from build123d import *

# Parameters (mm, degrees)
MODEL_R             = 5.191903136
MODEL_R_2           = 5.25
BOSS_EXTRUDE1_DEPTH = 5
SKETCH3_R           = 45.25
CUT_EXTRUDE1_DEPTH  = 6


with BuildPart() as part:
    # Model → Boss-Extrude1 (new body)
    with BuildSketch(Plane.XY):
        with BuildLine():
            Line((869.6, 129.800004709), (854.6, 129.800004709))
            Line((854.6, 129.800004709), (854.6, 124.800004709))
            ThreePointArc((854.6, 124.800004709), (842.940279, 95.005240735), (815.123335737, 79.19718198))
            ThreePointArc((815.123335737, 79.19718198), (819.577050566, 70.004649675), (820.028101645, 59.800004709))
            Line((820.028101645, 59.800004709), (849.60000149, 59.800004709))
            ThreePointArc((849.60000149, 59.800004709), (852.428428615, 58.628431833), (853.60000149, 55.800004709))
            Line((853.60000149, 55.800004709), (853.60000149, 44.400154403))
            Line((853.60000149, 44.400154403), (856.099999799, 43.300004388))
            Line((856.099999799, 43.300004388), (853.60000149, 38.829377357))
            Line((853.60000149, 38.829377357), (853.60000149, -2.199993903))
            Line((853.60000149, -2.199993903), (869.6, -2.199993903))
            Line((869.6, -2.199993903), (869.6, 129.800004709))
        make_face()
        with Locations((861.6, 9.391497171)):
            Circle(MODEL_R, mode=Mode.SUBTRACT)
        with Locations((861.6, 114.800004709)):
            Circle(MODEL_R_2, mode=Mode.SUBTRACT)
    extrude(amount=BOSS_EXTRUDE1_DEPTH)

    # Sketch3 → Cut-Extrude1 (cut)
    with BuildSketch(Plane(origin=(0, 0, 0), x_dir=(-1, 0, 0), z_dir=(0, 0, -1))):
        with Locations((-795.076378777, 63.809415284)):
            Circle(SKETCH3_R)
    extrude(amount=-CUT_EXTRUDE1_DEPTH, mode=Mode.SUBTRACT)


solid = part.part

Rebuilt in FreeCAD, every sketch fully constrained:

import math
import FreeCAD as App
import Part
import Sketcher

doc = App.newDocument("Part")
body = doc.addObject("PartDesign::Body", "Body")

# Sketch on XY plane
sketch1 = body.newObject("Sketcher::SketchObject", "Sketch")
sketch1.AttachmentSupport = (doc.getObject("XY_Plane"), [""])
sketch1.MapMode = "FlatFace"
sketch1.addGeometry(Part.LineSegment(App.Vector(869.6, 129.8, 0), App.Vector(854.6, 129.8, 0)), False)
sketch1.addGeometry(Part.LineSegment(App.Vector(854.6, 129.8, 0), App.Vector(854.6, 124.8, 0)), False)
sketch1.addGeometry(Part.ArcOfCircle(Part.Circle(App.Vector(806.7, 126.4, 0), App.Vector(0, 0, 1), 47.9), math.radians(-80), math.radians(-2)), False)
sketch1.addGeometry(Part.ArcOfCircle(Part.Circle(App.Vector(795.1, 63.8, 0), App.Vector(0, 0, 1), 25.3), math.radians(-9), math.radians(38)), False)
sketch1.addGeometry(Part.LineSegment(App.Vector(820, 59.8, 0), App.Vector(849.6, 59.8, 0)), False)
sketch1.addGeometry(Part.ArcOfCircle(Part.Circle(App.Vector(849.6, 55.8, 0), App.Vector(0, 0, 1), 4), math.radians(0), math.radians(90)), False)
sketch1.addGeometry(Part.LineSegment(App.Vector(853.6, 55.8, 0), App.Vector(853.6, 44.4, 0)), False)
sketch1.addGeometry(Part.LineSegment(App.Vector(853.6, 44.4, 0), App.Vector(856.1, 43.3, 0)), False)
sketch1.addGeometry(Part.LineSegment(App.Vector(856.1, 43.3, 0), App.Vector(853.6, 38.8, 0)), False)
sketch1.addGeometry(Part.LineSegment(App.Vector(853.6, 38.8, 0), App.Vector(853.6, -2.2, 0)), False)
sketch1.addGeometry(Part.LineSegment(App.Vector(853.6, -2.2, 0), App.Vector(869.6, -2.2, 0)), False)
sketch1.addGeometry(Part.LineSegment(App.Vector(869.6, -2.2, 0), App.Vector(869.6, 129.8, 0)), False)
sketch1.addGeometry(Part.Circle(App.Vector(861.6, 9.4, 0), App.Vector(0, 0, 1), 5.2), False)
sketch1.addGeometry(Part.Circle(App.Vector(861.6, 114.8, 0), App.Vector(0, 0, 1), 5.2), False)
sketch1.addConstraint(Sketcher.Constraint("Coincident", 0, 2, 1, 1))
sketch1.addConstraint(Sketcher.Constraint("Coincident", 1, 2, 2, 2))
sketch1.addConstraint(Sketcher.Constraint("Coincident", 2, 1, 3, 2))
sketch1.addConstraint(Sketcher.Constraint("Coincident", 3, 1, 4, 1))
sketch1.addConstraint(Sketcher.Constraint("Tangent", 4, 2, 5, 2))
sketch1.addConstraint(Sketcher.Constraint("Tangent", 5, 1, 6, 1))
sketch1.addConstraint(Sketcher.Constraint("Coincident", 6, 2, 7, 1))
sketch1.addConstraint(Sketcher.Constraint("Coincident", 7, 2, 8, 1))
sketch1.addConstraint(Sketcher.Constraint("Coincident", 8, 2, 9, 1))
sketch1.addConstraint(Sketcher.Constraint("Coincident", 9, 2, 10, 1))
sketch1.addConstraint(Sketcher.Constraint("Coincident", 10, 2, 11, 1))
sketch1.addConstraint(Sketcher.Constraint("Coincident", 11, 2, 0, 1))
sketch1.addConstraint(Sketcher.Constraint("Horizontal", 0))
sketch1.addConstraint(Sketcher.Constraint("Vertical", 1))
sketch1.addConstraint(Sketcher.Constraint("Horizontal", 4))
sketch1.addConstraint(Sketcher.Constraint("Vertical", 6))
sketch1.addConstraint(Sketcher.Constraint("Vertical", 9))
sketch1.addConstraint(Sketcher.Constraint("Horizontal", 10))
sketch1.addConstraint(Sketcher.Constraint("Vertical", 11))
sketch1.addConstraint(Sketcher.Constraint("Vertical", 12, 3, 13, 3))
sketch1.addConstraint(Sketcher.Constraint("Vertical", 6, 2, 8, 2))
sketch1.addConstraint(Sketcher.Constraint("Radius", 5, 4.0))
sketch1.addConstraint(Sketcher.Constraint("Diameter", 13, 10.5))
sketch1.addConstraint(Sketcher.Constraint("DistanceX", 0, 2, 0, 1, 15.0))
sketch1.addConstraint(Sketcher.Constraint("DistanceX", 10, 1, 10, 2, 15.999999))
sketch1.addConstraint(Sketcher.Constraint("DistanceY", 1, 2, 1, 1, 5.0))
sketch1.addConstraint(Sketcher.Constraint("DistanceY", 11, 1, 11, 2, 131.999999))
sketch1.addConstraint(Sketcher.Constraint("DistanceX", 5, 3, 12, 3, 11.999999))
sketch1.addConstraint(Sketcher.Constraint("DistanceY", 5, 3, 13, 3, 59.0))
sketch1.addConstraint(Sketcher.Constraint("DistanceY", 13, 3, 0, 2, 15.0))
sketch1.addConstraint(Sketcher.Constraint("DistanceX", -1, 1, 5, 3, 849.600001))
sketch1.addConstraint(Sketcher.Constraint("DistanceX", -1, 1, 7, 2, 856.1))
sketch1.addConstraint(Sketcher.Constraint("Radius", 3, 25.271799))
sketch1.addConstraint(Sketcher.Constraint("DistanceY", 7, 2, 5, 1, 12.5))
sketch1.addConstraint(Sketcher.Constraint("Radius", 2, 47.90217))
sketch1.addConstraint(Sketcher.Constraint("Diameter", 12, 10.383806))
sketch1.addConstraint(Sketcher.Constraint("DistanceX", 4, 1, 4, 2, 29.5719))
sketch1.addConstraint(Sketcher.Constraint("DistanceY", 6, 2, 6, 1, 11.39985))
sketch1.addConstraint(Sketcher.Constraint("DistanceY", 9, 2, 9, 1, 41.029371))
sketch1.addConstraint(Sketcher.Constraint("DistanceX", -1, 1, 3, 3, 795.076379))
sketch1.addConstraint(Sketcher.Constraint("DistanceY", -1, 1, 2, 1, 79.197182))
sketch1.addConstraint(Sketcher.Constraint("DistanceY", 3, 3, 2, 3, 62.547651))
sketch1.addConstraint(Sketcher.Constraint("DistanceY", 12, 3, 3, 3, 54.417918))
pad1 = body.newObject("PartDesign::Pad", "Pad")
pad1.Profile = sketch1
pad1.Length = 5

# Sketch on XY plane
sketch2 = body.newObject("Sketcher::SketchObject", "Sketch001")
sketch2.AttachmentSupport = (doc.getObject("XY_Plane"), [""])
sketch2.MapMode = "FlatFace"
sketch2.addGeometry(Part.Circle(App.Vector(795, 64, 0), App.Vector(0, 0, 1), 45), False)
sketch2.addConstraint(Sketcher.Constraint("Diameter", 0, 90.5))
sketch2.addConstraint(Sketcher.Constraint("DistanceX", -1, 1, 0, 3, 795.076379))
sketch2.addConstraint(Sketcher.Constraint("DistanceY", -1, 1, 0, 3, 63.809415))
pocket1 = body.newObject("PartDesign::Pocket", "Pocket")
pocket1.Profile = sketch2
pocket1.Length = 6
pocket1.Reversed = True

doc.recompute()
